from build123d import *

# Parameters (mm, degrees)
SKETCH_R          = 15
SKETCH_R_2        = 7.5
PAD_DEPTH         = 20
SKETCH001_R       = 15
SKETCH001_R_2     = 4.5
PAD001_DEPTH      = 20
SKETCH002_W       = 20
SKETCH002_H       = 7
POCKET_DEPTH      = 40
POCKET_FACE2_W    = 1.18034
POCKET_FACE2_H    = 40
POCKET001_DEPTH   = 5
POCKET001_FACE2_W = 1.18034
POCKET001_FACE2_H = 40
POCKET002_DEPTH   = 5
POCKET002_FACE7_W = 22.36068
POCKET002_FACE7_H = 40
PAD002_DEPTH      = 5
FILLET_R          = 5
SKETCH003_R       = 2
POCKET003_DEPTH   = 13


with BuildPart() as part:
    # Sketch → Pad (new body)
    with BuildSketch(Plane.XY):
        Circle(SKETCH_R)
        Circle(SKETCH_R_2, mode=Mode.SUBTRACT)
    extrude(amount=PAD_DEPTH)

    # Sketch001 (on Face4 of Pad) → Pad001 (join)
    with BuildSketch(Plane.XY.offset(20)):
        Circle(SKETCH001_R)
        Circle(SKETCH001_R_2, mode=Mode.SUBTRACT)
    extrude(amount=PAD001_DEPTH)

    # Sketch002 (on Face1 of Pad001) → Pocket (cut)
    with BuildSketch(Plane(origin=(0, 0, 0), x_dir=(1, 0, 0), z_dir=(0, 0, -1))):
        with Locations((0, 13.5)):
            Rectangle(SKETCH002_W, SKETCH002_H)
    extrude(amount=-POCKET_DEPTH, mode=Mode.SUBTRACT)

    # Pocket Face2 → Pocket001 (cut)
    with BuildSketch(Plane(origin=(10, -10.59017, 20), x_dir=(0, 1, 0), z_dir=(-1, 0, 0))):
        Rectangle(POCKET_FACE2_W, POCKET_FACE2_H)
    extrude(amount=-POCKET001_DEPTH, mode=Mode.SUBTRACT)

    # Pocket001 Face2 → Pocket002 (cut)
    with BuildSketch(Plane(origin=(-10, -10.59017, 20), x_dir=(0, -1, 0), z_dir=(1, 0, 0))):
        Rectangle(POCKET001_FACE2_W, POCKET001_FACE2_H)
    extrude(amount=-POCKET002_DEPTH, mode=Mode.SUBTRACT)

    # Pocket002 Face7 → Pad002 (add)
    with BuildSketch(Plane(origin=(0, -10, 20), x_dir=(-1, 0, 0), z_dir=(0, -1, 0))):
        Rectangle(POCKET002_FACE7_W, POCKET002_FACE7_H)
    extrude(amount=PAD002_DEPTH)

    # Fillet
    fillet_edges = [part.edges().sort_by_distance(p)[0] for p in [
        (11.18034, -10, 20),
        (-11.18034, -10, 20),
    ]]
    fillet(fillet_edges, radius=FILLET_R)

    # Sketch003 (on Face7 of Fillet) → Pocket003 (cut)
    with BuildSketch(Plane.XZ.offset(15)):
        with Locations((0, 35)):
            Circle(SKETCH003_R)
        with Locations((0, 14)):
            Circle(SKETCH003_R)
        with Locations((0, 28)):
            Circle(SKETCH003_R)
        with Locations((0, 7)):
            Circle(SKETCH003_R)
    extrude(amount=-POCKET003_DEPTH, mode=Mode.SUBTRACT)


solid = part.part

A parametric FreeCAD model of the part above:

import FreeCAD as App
import Part
import Sketcher


def edges_at(feature, points):
    """Names of the edges that pass closest to the given points."""
    edges = feature.Shape.Edges
    near = lambda p: min(range(len(edges)), key=lambda i: edges[i].distToShape(Part.Vertex(*p))[0])
    return sorted({f"Edge{near(p) + 1}" for p in points})

doc = App.newDocument("Part")
body = doc.addObject("PartDesign::Body", "Body")

# Sketch on XY plane
sketch1 = body.newObject("Sketcher::SketchObject", "Sketch")
sketch1.AttachmentSupport = (doc.getObject("XY_Plane"), [""])
sketch1.MapMode = "FlatFace"
sketch1.addGeometry([
    Part.Circle(App.Vector(0, 0, 0), App.Vector(0, 0, 1), 15),
    Part.Circle(App.Vector(0, 0, 0), App.Vector(0, 0, 1), 7.5),
], False)
sketch1.addConstraint([
    Sketcher.Constraint("Coincident", 0, 3, -1, 1),
    Sketcher.Constraint("Coincident", 1, 3, -1, 1),
    Sketcher.Constraint("Diameter", 0, 30.0),
    Sketcher.Constraint("Diameter", 1, 15.0),
])
pad1 = body.newObject("PartDesign::Pad", "Pad")
pad1.Profile = sketch1
pad1.Length = 20

# Sketch on XY plane
sketch2 = body.newObject("Sketcher::SketchObject", "Sketch001")
sketch2.AttachmentSupport = (doc.getObject("XY_Plane"), [""])
sketch2.MapMode = "FlatFace"
sketch2.AttachmentOffset = App.Placement(App.Vector(0, 0, 20), App.Rotation())
sketch2.addGeometry([
    Part.Circle(App.Vector(0, 0, 0), App.Vector(0, 0, 1), 15),
    Part.Circle(App.Vector(0, 0, 0), App.Vector(0, 0, 1), 4.5),
], False)
sketch2.addConstraint([
    Sketcher.Constraint("Coincident", 0, 3, -1, 1),
    Sketcher.Constraint("Coincident", 1, 3, -1, 1),
    Sketcher.Constraint("Diameter", 0, 30.0),
    Sketcher.Constraint("Diameter", 1, 9.0),
])
pad2 = body.newObject("PartDesign::Pad", "Pad001")
pad2.Profile = sketch2
pad2.Length = 20

# Sketch on XY plane
sketch3 = body.newObject("Sketcher::SketchObject", "Sketch002")
sketch3.AttachmentSupport = (doc.getObject("XY_Plane"), [""])
sketch3.MapMode = "FlatFace"
sketch3.addGeometry([
    Part.LineSegment(App.Vector(-10, -17, 0), App.Vector(-10, -10, 0)),
    Part.LineSegment(App.Vector(-10, -10, 0), App.Vector(10, -10, 0)),
    Part.LineSegment(App.Vector(10, -10, 0), App.Vector(10, -17, 0)),
    Part.LineSegment(App.Vector(10, -17, 0), App.Vector(-10, -17, 0)),
], False)
sketch3.addConstraint([
    Sketcher.Constraint("Coincident", 0, 2, 1, 1),
    Sketcher.Constraint("Coincident", 1, 2, 2, 1),
    Sketcher.Constraint("Coincident", 2, 2, 3, 1),
    Sketcher.Constraint("Coincident", 3, 2, 0, 1),
    Sketcher.Constraint("Vertical", 0),
    Sketcher.Constraint("Horizontal", 1),
    Sketcher.Constraint("Vertical", 2),
    Sketcher.Constraint("Horizontal", 3),
    Sketcher.Constraint("DistanceX", 1, 1, 1, 2, 20.0),
    Sketcher.Constraint("DistanceY", 0, 1, 0, 2, 7.0),
    Sketcher.Constraint("DistanceX", 0, 2, -1, 1, 10.0),
    Sketcher.Constraint("DistanceY", 0, 2, -1, 1, 10.0),
])
pocket1 = body.newObject("PartDesign::Pocket", "Pocket")
pocket1.Profile = sketch3
pocket1.Length = 40
pocket1.Reversed = True

# Sketch on YZ plane
sketch4 = body.newObject("Sketcher::SketchObject", "Sketch003")
sketch4.AttachmentSupport = (doc.getObject("YZ_Plane"), [""])
sketch4.MapMode = "FlatFace"
sketch4.AttachmentOffset = App.Placement(App.Vector(0, 0, 10), App.Rotation())
sketch4.addGeometry([
    Part.LineSegment(App.Vector(-11.18034, 0, 0), App.Vector(-11.18034, 40, 0)),
    Part.LineSegment(App.Vector(-11.18034, 40, 0), App.Vector(-10, 40, 0)),
    Part.LineSegment(App.Vector(-10, 40, 0), App.Vector(-10, 0, 0)),
    Part.LineSegment(App.Vector(-10, 0, 0), App.Vector(-11.18034, 0, 0)),
], False)
sketch4.addConstraint([
    Sketcher.Constraint("Coincident", 0, 2, 1, 1),
    Sketcher.Constraint("Coincident", 1, 2, 2, 1),
    Sketcher.Constraint("Coincident", 2, 2, 3, 1),
    Sketcher.Constraint("Coincident", 3, 2, 0, 1),
    Sketcher.Constraint("Vertical", 0),
    Sketcher.Constraint("Horizontal", 1),
    Sketcher.Constraint("Vertical", 2),
    Sketcher.Constraint("Horizontal", 3),
    Sketcher.Constraint("PointOnObject", 2, 2, -1),
    Sketcher.Constraint("DistanceY", 0, 1, 0, 2, 40.0),
    Sketcher.Constraint("DistanceX", 1, 2, -1, 1, 10.0),
    Sketcher.Constraint("DistanceX", 1, 1, 1, 2, 1.18034),
])
pocket2 = body.newObject("PartDesign::Pocket", "Pocket001")
pocket2.Profile = sketch4
pocket2.Length = 5
pocket2.Reversed = True

# Sketch on YZ plane
sketch5 = body.newObject("Sketcher::SketchObject", "Sketch004")
sketch5.AttachmentSupport = (doc.getObject("YZ_Plane"), [""])
sketch5.MapMode = "FlatFace"
sketch5.AttachmentOffset = App.Placement(App.Vector(0, 0, -10), App.Rotation())
sketch5.addGeometry([
    Part.LineSegment(App.Vector(-10, 0, 0), App.Vector(-10, 40, 0)),
    Part.LineSegment(App.Vector(-10, 40, 0), App.Vector(-11.18034, 40, 0)),
    Part.LineSegment(App.Vector(-11.18034, 40, 0), App.Vector(-11.18034, 0, 0)),
    Part.LineSegment(App.Vector(-11.18034, 0, 0), App.Vector(-10, 0, 0)),
], False)
sketch5.addConstraint([
    Sketcher.Constraint("Coincident", 0, 2, 1, 1),
    Sketcher.Constraint("Coincident", 1, 2, 2, 1),
    Sketcher.Constraint("Coincident", 2, 2, 3, 1),
    Sketcher.Constraint("Coincident", 3, 2, 0, 1),
    Sketcher.Constraint("Vertical", 0),
    Sketcher.Constraint("Horizontal", 1),
    Sketcher.Constraint("Vertical", 2),
    Sketcher.Constraint("Horizontal", 3),
    Sketcher.Constraint("PointOnObject", 2, 2, -1),
    Sketcher.Constraint("DistanceY", 0, 1, 0, 2, 40.0),
    Sketcher.Constraint("DistanceX", 0, 2, -1, 1, 10.0),
    Sketcher.Constraint("DistanceX", 1, 2, 1, 1, 1.18034),
])
pocket3 = body.newObject("PartDesign::Pocket", "Pocket002")
pocket3.Profile = sketch5
pocket3.Length = 5

# Sketch on XZ plane
sketch6 = body.newObject("Sketcher::SketchObject", "Sketch005")
sketch6.AttachmentSupport = (doc.getObject("XZ_Plane"), [""])
sketch6.MapMode = "FlatFace"
sketch6.AttachmentOffset = App.Placement(App.Vector(0, 0, 10), App.Rotation())
sketch6.addGeometry([
    Part.LineSegment(App.Vector(11.18034, 0, 0), App.Vector(11.18034, 40, 0)),
    Part.LineSegment(App.Vector(11.18034, 40, 0), App.Vector(-11.18034, 40, 0)),
    Part.LineSegment(App.Vector(-11.18034, 40, 0), App.Vector(-11.18034, 0, 0)),
    Part.LineSegment(App.Vector(-11.18034, 0, 0), App.Vector(11.18034, 0, 0)),
], False)
sketch6.addConstraint([
    Sketcher.Constraint("Coincident", 0, 2, 1, 1),
    Sketcher.Constraint("Coincident", 1, 2, 2, 1),
    Sketcher.Constraint("Coincident", 2, 2, 3, 1),
    Sketcher.Constraint("Coincident", 3, 2, 0, 1),
    Sketcher.Constraint("Vertical", 0),
    Sketcher.Constraint("Horizontal", 1),
    Sketcher.Constraint("Vertical", 2),
    Sketcher.Constraint("Horizontal", 3),
    Sketcher.Constraint("Symmetric", 2, 2, 3, 2, -1, 1),
    Sketcher.Constraint("DistanceY", 0, 1, 0, 2, 40.0),
    Sketcher.Constraint("DistanceX", 1, 2, 1, 1, 22.36068),
])
pad3 = body.newObject("PartDesign::Pad", "Pad002")
pad3.Profile = sketch6
pad3.Length = 5
doc.recompute()

fillet = body.newObject("PartDesign::Fillet", "Fillet")
fillet.Base = (pad3, edges_at(pad3, [(11.18, -10, 20), (-11.18, -10, 20)]))
fillet.Radius = 5

# Sketch on XZ plane
sketch7 = body.newObject("Sketcher::SketchObject", "Sketch006")
sketch7.AttachmentSupport = (doc.getObject("XZ_Plane"), [""])
sketch7.MapMode = "FlatFace"
sketch7.AttachmentOffset = App.Placement(App.Vector(0, 0, 15), App.Rotation())
sketch7.addGeometry([
    Part.Circle(App.Vector(0, 35, 0), App.Vector(0, 0, 1), 2),
    Part.Circle(App.Vector(0, 14, 0), App.Vector(0, 0, 1), 2),
    Part.Circle(App.Vector(0, 28, 0), App.Vector(0, 0, 1), 2),
    Part.Circle(App.Vector(0, 7, 0), App.Vector(0, 0, 1), 2),
], False)
sketch7.addConstraint([
    Sketcher.Constraint("Equal", 0, 1),
    Sketcher.Constraint("Equal", 1, 2),
    Sketcher.Constraint("Equal", 2, 3),
    Sketcher.Constraint("PointOnObject", 0, 3, -2),
    Sketcher.Constraint("PointOnObject", 1, 3, -2),
    Sketcher.Constraint("PointOnObject", 2, 3, -2),
    Sketcher.Constraint("PointOnObject", 3, 3, -2),
    Sketcher.Constraint("Diameter", 0, 4.0),
    Sketcher.Constraint("DistanceY", -1, 1, 0, 3, 35.0),
    Sketcher.Constraint("DistanceY", -1, 1, 1, 3, 14.0),
    Sketcher.Constraint("DistanceY", -1, 1, 2, 3, 28.0),
    Sketcher.Constraint("DistanceY", -1, 1, 3, 3, 7.0),
])
pocket4 = body.newObject("PartDesign::Pocket", "Pocket003")
pocket4.Profile = sketch7
pocket4.Length = 13

doc.recompute()
